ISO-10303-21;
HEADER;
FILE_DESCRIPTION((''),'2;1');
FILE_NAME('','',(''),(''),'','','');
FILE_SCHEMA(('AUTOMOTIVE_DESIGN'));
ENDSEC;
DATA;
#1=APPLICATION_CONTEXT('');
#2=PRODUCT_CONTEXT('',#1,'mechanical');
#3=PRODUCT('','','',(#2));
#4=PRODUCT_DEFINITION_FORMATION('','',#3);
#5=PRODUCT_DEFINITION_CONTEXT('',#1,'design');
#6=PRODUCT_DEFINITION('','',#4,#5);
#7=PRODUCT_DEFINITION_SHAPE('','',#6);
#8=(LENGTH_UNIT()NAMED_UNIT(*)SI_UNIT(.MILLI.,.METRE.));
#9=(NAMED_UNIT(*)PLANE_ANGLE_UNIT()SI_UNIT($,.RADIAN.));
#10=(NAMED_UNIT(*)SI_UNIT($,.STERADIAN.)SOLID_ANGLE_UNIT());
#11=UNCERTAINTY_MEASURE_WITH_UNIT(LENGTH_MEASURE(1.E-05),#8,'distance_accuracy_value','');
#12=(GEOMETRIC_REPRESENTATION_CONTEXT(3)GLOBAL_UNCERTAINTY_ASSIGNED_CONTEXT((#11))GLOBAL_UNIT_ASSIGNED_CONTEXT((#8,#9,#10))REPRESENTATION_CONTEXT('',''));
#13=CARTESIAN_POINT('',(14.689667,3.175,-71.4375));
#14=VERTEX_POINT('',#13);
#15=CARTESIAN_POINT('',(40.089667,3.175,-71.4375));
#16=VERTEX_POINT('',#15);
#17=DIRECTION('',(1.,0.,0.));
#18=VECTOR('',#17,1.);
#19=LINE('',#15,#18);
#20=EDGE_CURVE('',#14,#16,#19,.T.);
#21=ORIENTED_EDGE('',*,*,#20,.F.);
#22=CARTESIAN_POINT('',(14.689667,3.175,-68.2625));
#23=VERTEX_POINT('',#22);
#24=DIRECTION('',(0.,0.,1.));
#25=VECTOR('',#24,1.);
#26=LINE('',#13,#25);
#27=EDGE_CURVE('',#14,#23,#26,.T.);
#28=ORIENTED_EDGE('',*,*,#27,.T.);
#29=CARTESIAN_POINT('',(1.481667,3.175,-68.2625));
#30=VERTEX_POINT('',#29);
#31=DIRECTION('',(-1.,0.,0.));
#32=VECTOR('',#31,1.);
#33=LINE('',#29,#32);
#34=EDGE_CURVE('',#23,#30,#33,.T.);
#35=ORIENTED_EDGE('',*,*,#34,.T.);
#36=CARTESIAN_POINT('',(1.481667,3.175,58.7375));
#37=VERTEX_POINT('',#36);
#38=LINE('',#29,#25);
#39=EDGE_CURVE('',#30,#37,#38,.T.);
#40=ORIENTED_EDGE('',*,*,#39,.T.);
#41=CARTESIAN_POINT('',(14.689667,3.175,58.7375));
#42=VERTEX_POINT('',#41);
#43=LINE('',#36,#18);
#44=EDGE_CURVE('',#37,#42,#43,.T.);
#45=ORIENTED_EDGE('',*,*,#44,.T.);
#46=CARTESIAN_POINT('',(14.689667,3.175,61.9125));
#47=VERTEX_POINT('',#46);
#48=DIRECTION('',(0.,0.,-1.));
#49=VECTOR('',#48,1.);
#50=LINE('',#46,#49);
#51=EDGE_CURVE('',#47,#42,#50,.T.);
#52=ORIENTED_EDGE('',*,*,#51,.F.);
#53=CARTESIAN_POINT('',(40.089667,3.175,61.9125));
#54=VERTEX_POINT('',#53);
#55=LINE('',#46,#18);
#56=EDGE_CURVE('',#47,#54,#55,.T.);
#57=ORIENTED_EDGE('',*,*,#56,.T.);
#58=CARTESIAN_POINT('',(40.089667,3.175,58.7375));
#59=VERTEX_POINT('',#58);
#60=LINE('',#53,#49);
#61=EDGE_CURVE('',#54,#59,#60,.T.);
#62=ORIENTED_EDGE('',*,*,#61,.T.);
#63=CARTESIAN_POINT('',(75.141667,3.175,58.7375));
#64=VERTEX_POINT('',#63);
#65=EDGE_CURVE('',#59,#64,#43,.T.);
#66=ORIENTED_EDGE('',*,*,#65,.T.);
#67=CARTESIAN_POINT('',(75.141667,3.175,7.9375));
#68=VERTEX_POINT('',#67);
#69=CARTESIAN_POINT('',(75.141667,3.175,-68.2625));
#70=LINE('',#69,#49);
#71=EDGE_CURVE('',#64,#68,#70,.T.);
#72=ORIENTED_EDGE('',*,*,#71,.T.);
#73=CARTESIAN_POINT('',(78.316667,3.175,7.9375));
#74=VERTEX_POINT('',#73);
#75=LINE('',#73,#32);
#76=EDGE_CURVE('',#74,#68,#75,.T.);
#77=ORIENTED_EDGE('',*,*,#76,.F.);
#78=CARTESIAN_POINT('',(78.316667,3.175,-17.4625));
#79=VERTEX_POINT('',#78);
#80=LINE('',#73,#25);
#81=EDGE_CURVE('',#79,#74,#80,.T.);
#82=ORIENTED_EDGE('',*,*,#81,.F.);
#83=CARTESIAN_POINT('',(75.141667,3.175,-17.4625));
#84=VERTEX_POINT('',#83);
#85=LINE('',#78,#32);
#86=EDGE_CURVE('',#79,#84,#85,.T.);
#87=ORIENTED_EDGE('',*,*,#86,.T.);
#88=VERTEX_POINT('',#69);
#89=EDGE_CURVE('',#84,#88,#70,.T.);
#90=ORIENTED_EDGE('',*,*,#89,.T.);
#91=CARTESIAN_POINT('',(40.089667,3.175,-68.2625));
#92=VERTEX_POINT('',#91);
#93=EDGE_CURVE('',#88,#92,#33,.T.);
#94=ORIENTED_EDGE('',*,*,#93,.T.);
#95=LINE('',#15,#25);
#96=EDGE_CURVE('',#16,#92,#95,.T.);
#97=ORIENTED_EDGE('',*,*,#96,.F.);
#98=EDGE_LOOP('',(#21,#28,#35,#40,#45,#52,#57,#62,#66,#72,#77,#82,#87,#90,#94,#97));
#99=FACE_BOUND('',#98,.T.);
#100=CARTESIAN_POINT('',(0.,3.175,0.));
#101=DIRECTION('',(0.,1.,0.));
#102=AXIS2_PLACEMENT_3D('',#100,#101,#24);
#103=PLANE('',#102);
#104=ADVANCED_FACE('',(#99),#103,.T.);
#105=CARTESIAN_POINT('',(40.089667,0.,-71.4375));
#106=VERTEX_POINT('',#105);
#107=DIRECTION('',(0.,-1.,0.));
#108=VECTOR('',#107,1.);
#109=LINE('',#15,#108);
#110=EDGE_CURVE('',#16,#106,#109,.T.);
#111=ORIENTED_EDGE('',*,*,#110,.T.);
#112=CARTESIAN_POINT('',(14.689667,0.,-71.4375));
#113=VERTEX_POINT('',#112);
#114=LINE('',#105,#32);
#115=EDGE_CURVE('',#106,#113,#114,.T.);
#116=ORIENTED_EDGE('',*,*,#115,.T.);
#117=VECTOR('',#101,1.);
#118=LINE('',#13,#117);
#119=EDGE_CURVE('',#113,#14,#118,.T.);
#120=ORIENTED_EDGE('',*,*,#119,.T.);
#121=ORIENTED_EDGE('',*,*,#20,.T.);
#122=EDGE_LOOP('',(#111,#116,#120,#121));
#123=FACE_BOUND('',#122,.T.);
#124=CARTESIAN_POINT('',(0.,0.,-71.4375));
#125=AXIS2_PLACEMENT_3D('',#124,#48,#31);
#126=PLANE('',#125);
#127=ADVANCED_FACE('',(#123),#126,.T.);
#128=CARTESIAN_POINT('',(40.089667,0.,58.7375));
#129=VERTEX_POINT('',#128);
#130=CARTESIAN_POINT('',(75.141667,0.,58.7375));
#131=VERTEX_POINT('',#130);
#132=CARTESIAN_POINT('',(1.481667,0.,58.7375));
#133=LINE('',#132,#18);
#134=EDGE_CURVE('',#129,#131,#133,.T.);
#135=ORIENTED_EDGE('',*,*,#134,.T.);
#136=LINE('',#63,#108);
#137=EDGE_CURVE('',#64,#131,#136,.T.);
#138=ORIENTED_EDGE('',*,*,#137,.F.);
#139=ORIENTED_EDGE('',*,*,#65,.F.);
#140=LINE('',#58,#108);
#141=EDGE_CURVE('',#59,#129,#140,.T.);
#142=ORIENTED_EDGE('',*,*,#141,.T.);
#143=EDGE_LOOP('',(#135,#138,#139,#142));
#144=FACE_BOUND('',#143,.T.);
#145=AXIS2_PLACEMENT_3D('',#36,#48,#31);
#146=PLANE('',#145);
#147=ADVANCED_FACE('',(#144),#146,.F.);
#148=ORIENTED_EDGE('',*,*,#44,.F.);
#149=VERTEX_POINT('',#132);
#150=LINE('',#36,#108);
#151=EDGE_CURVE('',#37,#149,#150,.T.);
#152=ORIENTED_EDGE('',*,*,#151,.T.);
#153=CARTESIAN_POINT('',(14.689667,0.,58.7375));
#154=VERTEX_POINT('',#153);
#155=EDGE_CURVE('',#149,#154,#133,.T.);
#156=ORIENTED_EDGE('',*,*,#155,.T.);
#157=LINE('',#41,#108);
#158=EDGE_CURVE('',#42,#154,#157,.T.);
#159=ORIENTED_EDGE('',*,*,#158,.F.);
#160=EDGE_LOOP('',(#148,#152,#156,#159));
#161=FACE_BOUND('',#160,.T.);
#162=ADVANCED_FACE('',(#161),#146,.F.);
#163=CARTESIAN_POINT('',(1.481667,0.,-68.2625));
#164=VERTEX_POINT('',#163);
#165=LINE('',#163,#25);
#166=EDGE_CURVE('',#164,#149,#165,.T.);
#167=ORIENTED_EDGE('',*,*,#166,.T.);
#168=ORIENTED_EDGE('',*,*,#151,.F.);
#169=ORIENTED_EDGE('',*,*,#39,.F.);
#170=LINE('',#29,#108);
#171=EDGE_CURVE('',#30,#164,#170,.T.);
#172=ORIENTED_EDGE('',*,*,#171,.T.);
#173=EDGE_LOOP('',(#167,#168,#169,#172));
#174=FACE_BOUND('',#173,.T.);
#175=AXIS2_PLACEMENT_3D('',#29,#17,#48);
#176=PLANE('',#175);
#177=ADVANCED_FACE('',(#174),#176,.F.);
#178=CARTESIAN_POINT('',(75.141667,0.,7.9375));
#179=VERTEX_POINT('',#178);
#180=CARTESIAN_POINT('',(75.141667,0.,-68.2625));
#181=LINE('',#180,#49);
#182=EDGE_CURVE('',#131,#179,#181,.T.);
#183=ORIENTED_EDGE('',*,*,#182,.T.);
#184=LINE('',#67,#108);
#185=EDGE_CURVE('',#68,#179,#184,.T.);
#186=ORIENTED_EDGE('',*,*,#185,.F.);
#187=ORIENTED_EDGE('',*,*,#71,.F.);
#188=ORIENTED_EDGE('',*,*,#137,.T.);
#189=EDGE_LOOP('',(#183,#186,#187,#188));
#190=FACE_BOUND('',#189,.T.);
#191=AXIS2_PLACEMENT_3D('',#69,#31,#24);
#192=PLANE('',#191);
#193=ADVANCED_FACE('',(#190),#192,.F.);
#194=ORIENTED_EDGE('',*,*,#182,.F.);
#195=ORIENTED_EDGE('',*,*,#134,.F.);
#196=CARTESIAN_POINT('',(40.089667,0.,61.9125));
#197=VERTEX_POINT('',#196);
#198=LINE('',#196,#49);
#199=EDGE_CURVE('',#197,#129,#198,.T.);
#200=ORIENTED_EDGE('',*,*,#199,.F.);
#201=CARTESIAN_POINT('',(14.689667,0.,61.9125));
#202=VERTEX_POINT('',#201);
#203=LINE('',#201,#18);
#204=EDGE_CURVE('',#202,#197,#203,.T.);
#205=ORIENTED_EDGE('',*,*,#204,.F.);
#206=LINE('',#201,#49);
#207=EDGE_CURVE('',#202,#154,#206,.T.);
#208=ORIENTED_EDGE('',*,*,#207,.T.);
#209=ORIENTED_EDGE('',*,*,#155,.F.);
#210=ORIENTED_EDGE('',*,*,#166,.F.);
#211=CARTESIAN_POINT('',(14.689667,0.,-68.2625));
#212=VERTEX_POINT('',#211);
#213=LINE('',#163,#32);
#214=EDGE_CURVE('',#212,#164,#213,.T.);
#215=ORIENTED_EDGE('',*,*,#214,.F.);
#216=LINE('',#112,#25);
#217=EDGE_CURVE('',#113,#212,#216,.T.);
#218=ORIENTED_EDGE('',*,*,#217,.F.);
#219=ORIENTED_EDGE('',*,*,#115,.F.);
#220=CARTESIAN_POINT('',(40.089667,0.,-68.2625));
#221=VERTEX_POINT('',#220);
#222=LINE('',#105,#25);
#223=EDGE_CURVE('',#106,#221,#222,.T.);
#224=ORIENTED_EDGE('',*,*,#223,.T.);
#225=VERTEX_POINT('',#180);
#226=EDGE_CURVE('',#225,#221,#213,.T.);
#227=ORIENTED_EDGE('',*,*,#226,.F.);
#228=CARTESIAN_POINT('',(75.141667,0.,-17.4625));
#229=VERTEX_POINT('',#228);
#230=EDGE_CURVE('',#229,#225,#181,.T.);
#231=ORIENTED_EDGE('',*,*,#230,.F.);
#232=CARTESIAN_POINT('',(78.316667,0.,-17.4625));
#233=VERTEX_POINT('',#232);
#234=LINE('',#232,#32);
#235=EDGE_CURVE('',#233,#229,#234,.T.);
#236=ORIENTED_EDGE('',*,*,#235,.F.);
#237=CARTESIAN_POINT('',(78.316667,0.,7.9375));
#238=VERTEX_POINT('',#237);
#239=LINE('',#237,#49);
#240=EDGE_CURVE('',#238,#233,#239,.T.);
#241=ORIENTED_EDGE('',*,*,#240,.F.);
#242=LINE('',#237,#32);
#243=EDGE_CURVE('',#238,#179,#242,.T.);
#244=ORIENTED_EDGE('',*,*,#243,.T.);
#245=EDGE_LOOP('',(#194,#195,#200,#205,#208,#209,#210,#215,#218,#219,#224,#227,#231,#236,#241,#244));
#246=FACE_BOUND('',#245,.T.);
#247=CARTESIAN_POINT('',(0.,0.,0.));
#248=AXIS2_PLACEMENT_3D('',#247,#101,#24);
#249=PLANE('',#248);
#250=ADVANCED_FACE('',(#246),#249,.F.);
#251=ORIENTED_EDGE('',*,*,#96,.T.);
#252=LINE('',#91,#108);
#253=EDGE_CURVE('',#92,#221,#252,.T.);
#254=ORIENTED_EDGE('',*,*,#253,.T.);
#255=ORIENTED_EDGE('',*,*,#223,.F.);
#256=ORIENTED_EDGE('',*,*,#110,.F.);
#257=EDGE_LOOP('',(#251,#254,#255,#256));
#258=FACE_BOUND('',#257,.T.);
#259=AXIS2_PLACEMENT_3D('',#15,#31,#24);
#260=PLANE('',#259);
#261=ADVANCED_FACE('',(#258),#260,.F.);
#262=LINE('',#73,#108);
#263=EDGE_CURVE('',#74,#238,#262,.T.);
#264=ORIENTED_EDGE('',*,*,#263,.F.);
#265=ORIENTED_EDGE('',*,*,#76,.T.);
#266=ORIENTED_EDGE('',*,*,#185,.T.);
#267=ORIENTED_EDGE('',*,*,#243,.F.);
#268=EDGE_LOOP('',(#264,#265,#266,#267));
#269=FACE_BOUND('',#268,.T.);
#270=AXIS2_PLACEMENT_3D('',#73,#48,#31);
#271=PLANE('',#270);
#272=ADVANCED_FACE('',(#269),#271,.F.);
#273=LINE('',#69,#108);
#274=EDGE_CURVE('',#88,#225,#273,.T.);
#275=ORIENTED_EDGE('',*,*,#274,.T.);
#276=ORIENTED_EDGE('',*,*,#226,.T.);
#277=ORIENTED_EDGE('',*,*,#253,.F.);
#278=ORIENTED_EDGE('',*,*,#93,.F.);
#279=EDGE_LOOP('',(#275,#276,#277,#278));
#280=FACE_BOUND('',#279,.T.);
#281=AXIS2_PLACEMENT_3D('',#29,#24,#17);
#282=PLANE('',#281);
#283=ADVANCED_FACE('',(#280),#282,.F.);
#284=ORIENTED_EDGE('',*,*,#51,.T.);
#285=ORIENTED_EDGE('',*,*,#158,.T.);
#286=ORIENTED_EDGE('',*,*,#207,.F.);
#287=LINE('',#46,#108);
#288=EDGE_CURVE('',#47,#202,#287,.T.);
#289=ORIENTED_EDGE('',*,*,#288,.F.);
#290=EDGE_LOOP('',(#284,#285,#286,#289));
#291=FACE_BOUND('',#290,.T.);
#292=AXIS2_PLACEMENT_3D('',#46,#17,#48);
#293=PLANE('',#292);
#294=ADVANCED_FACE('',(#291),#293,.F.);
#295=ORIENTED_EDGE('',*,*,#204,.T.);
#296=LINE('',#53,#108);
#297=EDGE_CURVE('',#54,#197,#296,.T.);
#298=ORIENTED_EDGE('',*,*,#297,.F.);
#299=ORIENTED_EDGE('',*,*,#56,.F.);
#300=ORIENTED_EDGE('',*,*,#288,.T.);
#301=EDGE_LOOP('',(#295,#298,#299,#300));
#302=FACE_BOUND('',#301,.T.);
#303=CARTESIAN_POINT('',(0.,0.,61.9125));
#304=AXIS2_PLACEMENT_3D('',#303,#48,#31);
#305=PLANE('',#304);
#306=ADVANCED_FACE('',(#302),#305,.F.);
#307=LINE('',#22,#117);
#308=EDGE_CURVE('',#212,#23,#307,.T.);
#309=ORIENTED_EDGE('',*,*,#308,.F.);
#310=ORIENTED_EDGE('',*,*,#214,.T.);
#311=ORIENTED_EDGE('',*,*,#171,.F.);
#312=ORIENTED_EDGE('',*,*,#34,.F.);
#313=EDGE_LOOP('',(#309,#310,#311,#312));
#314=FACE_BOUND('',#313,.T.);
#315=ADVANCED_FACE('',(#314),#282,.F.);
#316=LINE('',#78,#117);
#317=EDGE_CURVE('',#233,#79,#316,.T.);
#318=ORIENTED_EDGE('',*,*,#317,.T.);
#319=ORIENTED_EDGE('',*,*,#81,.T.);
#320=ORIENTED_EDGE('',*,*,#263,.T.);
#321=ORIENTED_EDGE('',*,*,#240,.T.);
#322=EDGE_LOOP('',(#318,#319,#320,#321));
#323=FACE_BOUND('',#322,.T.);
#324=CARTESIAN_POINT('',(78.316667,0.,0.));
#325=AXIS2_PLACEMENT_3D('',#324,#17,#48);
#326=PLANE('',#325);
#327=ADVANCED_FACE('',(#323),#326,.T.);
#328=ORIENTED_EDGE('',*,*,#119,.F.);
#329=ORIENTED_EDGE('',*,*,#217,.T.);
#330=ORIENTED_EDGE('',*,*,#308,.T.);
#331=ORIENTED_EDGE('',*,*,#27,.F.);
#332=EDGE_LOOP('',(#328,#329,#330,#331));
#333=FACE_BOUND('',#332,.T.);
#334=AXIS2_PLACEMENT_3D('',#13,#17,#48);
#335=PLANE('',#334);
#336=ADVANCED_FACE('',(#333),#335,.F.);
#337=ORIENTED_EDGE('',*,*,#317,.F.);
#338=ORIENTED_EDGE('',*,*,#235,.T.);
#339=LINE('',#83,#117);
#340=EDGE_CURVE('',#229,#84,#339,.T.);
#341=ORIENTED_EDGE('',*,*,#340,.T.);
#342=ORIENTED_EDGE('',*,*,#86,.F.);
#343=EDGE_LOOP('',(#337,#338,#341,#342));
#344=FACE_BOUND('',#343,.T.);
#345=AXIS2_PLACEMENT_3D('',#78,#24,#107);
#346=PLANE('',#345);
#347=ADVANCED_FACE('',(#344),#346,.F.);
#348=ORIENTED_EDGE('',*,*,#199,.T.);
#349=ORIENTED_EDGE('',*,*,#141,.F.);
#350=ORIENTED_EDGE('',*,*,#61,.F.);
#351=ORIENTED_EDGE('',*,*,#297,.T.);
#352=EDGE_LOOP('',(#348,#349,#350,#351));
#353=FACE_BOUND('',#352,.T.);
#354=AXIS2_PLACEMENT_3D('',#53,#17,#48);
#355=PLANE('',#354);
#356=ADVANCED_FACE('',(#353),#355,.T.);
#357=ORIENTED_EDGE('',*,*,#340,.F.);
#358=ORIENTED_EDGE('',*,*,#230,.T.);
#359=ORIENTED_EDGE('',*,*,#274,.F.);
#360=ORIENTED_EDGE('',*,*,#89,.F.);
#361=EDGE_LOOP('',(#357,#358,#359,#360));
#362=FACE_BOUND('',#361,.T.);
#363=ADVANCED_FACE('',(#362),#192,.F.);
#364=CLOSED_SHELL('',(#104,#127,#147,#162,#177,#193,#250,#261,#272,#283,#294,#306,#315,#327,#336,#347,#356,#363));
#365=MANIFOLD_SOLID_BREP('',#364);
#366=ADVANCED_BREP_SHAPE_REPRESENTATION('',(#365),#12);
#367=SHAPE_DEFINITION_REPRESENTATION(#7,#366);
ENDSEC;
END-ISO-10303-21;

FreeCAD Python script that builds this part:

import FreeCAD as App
import Part
import Sketcher

V = App.Vector
Q = App.Units.Quantity

doc = App.newDocument("Part")
body = doc.addObject("PartDesign::Body", "Body")

# Sketch on XZ plane
sketch1 = body.newObject("Sketcher::SketchObject", "Sketch")
sketch1.AttachmentSupport = (doc.getObject("XZ_Plane"), [""])
sketch1.MapMode = "FlatFace"
sketch1.addGeometry([
    Part.LineSegment(V(1.481667, -68.2625, 0), V(1.481667, 58.7375, 0)),
    Part.LineSegment(V(1.481667, 58.7375, 0), V(75.141667, 58.7375, 0)),
    Part.LineSegment(V(75.141667, 58.7375, 0), V(75.141667, -68.2625, 0)),
    Part.LineSegment(V(75.141667, -68.2625, 0), V(1.481667, -68.2625, 0)),
], False)
sketch1.addConstraint([
    Sketcher.Constraint("Coincident", 0, 2, 1, 1),
    Sketcher.Constraint("Coincident", 1, 2, 2, 1),
    Sketcher.Constraint("Coincident", 2, 2, 3, 1),
    Sketcher.Constraint("Coincident", 3, 2, 0, 1),
    Sketcher.Constraint("Vertical", 0),
    Sketcher.Constraint("Horizontal", 1),
    Sketcher.Constraint("Vertical", 2),
    Sketcher.Constraint("Horizontal", 3),
    Sketcher.Constraint("DistanceY", 0, 1, 0, 2, Q("5 in")),
    Sketcher.Constraint("DistanceX", 1, 1, 1, 2, Q("2.9 in")),
    Sketcher.Constraint("DistanceY", -1, 1, 0, 2, Q("2.3125 in")),
    Sketcher.Constraint("DistanceX", -1, 1, 0, 2, Q("1.481667 mm")),
])
pad1 = body.newObject("PartDesign::Pad", "Pad")
pad1.Profile = sketch1
pad1.Length = Q("0.125 in")
pad1.Reversed = True

# Sketch on YZ plane
sketch2 = body.newObject("Sketcher::SketchObject", "Sketch001")
sketch2.AttachmentSupport = (doc.getObject("YZ_Plane"), [""])
sketch2.MapMode = "FlatFace"
sketch2.AttachmentOffset = App.Placement(V(0, 0, 75.141667), App.Rotation())
sketch2.addGeometry([
    Part.LineSegment(V(3.175, 7.9375, 0), V(0, 7.9375, 0)),
    Part.LineSegment(V(0, 7.9375, 0), V(0, -17.4625, 0)),
    Part.LineSegment(V(0, -17.4625, 0), V(3.175, -17.4625, 0)),
    Part.LineSegment(V(3.175, -17.4625, 0), V(3.175, 7.9375, 0)),
], False)
sketch2.addConstraint([
    Sketcher.Constraint("Coincident", 0, 2, 1, 1),
    Sketcher.Constraint("Coincident", 1, 2, 2, 1),
    Sketcher.Constraint("Coincident", 2, 2, 3, 1),
    Sketcher.Constraint("Coincident", 3, 2, 0, 1),
    Sketcher.Constraint("Horizontal", 0),
    Sketcher.Constraint("Vertical", 1),
    Sketcher.Constraint("Horizontal", 2),
    Sketcher.Constraint("Vertical", 3),
    Sketcher.Constraint("PointOnObject", 0, 2, -2),
    Sketcher.Constraint("DistanceY", 1, 2, 1, 1, Q("1 in")),
    Sketcher.Constraint("DistanceX", 0, 2, 0, 1, Q("0.125 in")),
    Sketcher.Constraint("DistanceY", -1, 1, 0, 2, Q("0.3125 in")),
])
pad2 = body.newObject("PartDesign::Pad", "Pad001")
pad2.Profile = sketch2
pad2.Length = Q("0.125 in")

# Sketch on XY plane
sketch3 = body.newObject("Sketcher::SketchObject", "Sketch002")
sketch3.AttachmentSupport = (doc.getObject("XY_Plane"), [""])
sketch3.MapMode = "FlatFace"
sketch3.AttachmentOffset = App.Placement(V(0, 0, 2.3125 * 25.4), App.Rotation())
sketch3.addGeometry([
    Part.LineSegment(V(14.689667, 3.175, 0), V(14.689667, 0, 0)),
    Part.LineSegment(V(14.689667, 0, 0), V(40.089667, 0, 0)),
    Part.LineSegment(V(40.089667, 0, 0), V(40.089667, 3.175, 0)),
    Part.LineSegment(V(40.089667, 3.175, 0), V(14.689667, 3.175, 0)),
], False)
sketch3.addConstraint([
    Sketcher.Constraint("Coincident", 0, 2, 1, 1),
    Sketcher.Constraint("Coincident", 1, 2, 2, 1),
    Sketcher.Constraint("Coincident", 2, 2, 3, 1),
    Sketcher.Constraint("Coincident", 3, 2, 0, 1),
    Sketcher.Constraint("Vertical", 0),
    Sketcher.Constraint("Horizontal", 1),
    Sketcher.Constraint("Vertical", 2),
    Sketcher.Constraint("Horizontal", 3),
    Sketcher.Constraint("PointOnObject", 0, 2, -1),
    Sketcher.Constraint("DistanceX", 1, 1, 1, 2, Q("1 in")),
    Sketcher.Constraint("DistanceY", 0, 2, 0, 1, Q("0.125 in")),
    Sketcher.Constraint("DistanceX", -1, 1, 0, 2, Q("14.689667 mm")),
])
pad3 = body.newObject("PartDesign::Pad", "Pad002")
pad3.Profile = sketch3
pad3.Length = Q("0.125 in")

# Sketch on XY plane
sketch4 = body.newObject("Sketcher::SketchObject", "Sketch003")
sketch4.AttachmentSupport = (doc.getObject("XY_Plane"), [""])
sketch4.MapMode = "FlatFace"
sketch4.AttachmentOffset = App.Placement(V(0, 0, -2.6875 * 25.4), App.Rotation())
sketch4.addGeometry([
    Part.LineSegment(V(40.089667, 3.175, 0), V(40.089667, 0, 0)),
    Part.LineSegment(V(40.089667, 0, 0), V(14.689667, 0, 0)),
    Part.LineSegment(V(14.689667, 0, 0), V(14.689667, 3.175, 0)),
    Part.LineSegment(V(14.689667, 3.175, 0), V(40.089667, 3.175, 0)),
], False)
sketch4.addConstraint([
    Sketcher.Constraint("Coincident", 0, 2, 1, 1),
    Sketcher.Constraint("Coincident", 1, 2, 2, 1),
    Sketcher.Constraint("Coincident", 2, 2, 3, 1),
    Sketcher.Constraint("Coincident", 3, 2, 0, 1),
    Sketcher.Constraint("Vertical", 0),
    Sketcher.Constraint("Horizontal", 1),
    Sketcher.Constraint("Vertical", 2),
    Sketcher.Constraint("Horizontal", 3),
    Sketcher.Constraint("PointOnObject", 0, 2, -1),
    Sketcher.Constraint("DistanceX", 1, 2, 1, 1, Q("1 in")),
    Sketcher.Constraint("DistanceY", 0, 2, 0, 1, Q("0.125 in")),
    Sketcher.Constraint("DistanceX", -1, 1, 0, 2, Q("40.089667 mm")),
])
pad4 = body.newObject("PartDesign::Pad", "Pad003")
pad4.Profile = sketch4
pad4.Length = Q("0.125 in")
pad4.Reversed = True

doc.recompute()
